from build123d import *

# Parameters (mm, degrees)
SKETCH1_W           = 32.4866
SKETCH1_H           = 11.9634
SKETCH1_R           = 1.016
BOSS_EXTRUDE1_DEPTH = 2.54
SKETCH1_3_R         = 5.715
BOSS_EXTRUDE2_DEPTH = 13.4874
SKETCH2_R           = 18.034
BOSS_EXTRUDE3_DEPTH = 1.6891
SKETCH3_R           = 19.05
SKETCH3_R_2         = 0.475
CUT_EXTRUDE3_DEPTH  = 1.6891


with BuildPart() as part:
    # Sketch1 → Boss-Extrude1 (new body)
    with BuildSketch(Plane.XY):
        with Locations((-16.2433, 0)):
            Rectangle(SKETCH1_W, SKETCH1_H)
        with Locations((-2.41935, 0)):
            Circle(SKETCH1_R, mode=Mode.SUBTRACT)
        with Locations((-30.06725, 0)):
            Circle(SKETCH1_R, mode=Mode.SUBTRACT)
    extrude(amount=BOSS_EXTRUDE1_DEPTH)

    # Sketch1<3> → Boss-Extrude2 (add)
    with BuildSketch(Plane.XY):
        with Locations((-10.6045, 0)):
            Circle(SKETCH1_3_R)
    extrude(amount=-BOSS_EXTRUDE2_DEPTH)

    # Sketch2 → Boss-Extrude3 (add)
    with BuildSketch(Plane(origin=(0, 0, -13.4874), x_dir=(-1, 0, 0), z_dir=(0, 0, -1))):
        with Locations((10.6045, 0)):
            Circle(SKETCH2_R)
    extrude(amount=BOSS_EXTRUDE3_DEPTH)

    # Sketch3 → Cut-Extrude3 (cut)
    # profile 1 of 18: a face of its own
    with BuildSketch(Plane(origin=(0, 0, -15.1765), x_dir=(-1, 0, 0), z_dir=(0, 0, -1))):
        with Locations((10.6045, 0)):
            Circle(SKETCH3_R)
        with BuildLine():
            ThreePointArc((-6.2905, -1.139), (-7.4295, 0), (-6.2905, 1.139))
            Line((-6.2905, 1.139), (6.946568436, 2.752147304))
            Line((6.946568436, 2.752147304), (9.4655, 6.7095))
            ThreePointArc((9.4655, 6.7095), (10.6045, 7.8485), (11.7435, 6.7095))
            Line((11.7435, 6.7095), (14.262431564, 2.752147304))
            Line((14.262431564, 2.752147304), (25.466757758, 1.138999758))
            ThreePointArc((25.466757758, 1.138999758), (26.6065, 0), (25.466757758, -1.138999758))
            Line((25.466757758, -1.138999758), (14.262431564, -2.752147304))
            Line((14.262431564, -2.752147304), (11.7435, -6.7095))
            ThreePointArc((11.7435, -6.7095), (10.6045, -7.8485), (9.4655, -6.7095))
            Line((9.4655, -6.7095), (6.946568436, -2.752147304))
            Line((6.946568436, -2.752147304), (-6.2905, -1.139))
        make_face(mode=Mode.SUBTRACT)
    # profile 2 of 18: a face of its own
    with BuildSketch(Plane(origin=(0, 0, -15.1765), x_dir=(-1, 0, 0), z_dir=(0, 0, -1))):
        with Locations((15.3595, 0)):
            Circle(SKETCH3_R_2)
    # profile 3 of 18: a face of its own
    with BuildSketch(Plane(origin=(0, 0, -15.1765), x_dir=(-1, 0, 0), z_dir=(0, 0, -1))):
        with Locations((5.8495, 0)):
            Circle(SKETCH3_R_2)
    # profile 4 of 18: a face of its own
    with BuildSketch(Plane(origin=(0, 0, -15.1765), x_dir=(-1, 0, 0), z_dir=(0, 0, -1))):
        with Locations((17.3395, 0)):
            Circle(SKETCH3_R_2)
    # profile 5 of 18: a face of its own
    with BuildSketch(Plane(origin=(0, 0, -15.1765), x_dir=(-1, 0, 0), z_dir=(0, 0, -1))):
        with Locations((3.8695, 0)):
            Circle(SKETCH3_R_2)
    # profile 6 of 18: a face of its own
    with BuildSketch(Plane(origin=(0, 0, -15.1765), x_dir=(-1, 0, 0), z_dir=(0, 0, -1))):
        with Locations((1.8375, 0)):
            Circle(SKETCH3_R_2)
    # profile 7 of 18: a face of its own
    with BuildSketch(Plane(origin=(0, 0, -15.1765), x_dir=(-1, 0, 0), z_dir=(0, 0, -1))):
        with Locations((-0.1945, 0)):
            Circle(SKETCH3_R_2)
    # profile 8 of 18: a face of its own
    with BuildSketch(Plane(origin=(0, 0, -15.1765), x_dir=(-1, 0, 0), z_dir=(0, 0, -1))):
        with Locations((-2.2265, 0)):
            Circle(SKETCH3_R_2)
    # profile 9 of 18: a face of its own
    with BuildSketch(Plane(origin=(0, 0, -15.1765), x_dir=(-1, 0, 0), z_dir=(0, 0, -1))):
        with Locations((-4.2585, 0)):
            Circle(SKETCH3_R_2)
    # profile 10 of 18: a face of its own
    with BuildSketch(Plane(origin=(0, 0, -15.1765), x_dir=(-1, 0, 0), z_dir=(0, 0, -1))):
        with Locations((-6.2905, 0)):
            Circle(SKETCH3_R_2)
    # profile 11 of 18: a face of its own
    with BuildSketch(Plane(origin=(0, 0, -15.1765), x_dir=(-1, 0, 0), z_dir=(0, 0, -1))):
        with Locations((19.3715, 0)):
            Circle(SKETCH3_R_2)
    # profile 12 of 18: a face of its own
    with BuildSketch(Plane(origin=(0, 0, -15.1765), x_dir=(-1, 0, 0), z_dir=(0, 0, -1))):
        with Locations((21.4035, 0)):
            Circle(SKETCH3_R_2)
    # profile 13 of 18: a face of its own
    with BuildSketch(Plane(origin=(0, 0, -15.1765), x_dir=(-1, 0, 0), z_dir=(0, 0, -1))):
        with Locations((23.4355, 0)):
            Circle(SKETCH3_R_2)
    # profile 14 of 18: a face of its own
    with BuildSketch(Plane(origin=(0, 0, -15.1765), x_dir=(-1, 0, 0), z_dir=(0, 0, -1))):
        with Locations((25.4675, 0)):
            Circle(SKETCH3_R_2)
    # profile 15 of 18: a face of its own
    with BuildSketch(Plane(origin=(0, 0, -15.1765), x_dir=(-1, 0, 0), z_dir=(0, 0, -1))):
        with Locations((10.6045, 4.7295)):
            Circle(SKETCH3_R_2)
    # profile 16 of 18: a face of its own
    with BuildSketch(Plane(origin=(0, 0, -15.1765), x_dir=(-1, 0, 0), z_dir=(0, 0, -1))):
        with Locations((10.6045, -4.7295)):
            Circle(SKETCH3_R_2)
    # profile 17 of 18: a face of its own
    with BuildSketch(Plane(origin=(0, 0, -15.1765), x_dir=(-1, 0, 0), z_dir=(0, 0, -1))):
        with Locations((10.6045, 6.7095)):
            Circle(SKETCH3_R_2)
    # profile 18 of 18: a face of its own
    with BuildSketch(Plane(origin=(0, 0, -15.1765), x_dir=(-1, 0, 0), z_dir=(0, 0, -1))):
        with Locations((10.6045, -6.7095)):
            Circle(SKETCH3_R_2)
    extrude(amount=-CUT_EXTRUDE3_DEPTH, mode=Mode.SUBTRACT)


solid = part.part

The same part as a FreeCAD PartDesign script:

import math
import FreeCAD as App
import Part
import Sketcher
Q = App.Units.Quantity


def add_polygon(sketch, points):
    """Adds a closed chain of lines whose ends are joined by coincident constraints."""
    first, n = sketch.GeometryCount, len(points)
    for a, b in zip(points, points[1:] + points[:1]):
        sketch.addGeometry(Part.LineSegment(App.Vector(*a, 0), App.Vector(*b, 0)), False)
    for i in range(n):
        sketch.addConstraint(Sketcher.Constraint("Coincident", first + i, 2, first + (i + 1) % n, 1))

doc = App.newDocument("Part")
body = doc.addObject("PartDesign::Body", "Body")

sketch1 = doc.addObject("Sketcher::SketchObject", "Sketch")
body.addObject(sketch1)
sketch1.AttachmentSupport = (doc.XY_Plane, [""])
sketch1.MapMode = "FlatFace"
add_polygon(sketch1, [(-32.5, 6), (-32.5, -6), (0, -6), (0, 6)])
sketch1.addGeometry(Part.Circle(App.Vector(-30.1, 0, 0), App.Vector(0, 0, 1), 1), False)
sketch1.addGeometry(Part.Circle(App.Vector(-2.4, 0, 0), App.Vector(0, 0, 1), 1), False)
sketch1.addConstraint([
    Sketcher.Constraint("Vertical", 0),
    Sketcher.Constraint("Horizontal", 1),
    Sketcher.Constraint("Vertical", 2),
    Sketcher.Constraint("Horizontal", 3),
    Sketcher.Constraint("Equal", 4, 5),
    Sketcher.Constraint("Symmetric", 1, 2, 2, 2, -1, 1),
    Sketcher.Constraint("PointOnObject", 4, 3, -1),
    Sketcher.Constraint("PointOnObject", 5, 3, -1),
    Sketcher.Constraint("Diameter", 4, Q("0.08 in")),
    Sketcher.Constraint("DistanceX", 1, 1, 1, 2, Q("1.279 in")),
    Sketcher.Constraint("DistanceY", 0, 2, 0, 1, Q("0.471 in")),
    Sketcher.Constraint("DistanceX", 4, 3, 5, 3, Q("1.0885 in")),
    Sketcher.Constraint("DistanceX", 4, 3, -1, 1, Q("30.06725 mm")),
])
pad1 = doc.addObject("PartDesign::Pad", "Pad")
body.addObject(pad1)
pad1.Profile = sketch1
pad1.Length = Q("0.1 in")

sketch2 = doc.addObject("Sketcher::SketchObject", "Sketch001")
body.addObject(sketch2)
sketch2.AttachmentSupport = (doc.XY_Plane, [""])
sketch2.MapMode = "FlatFace"
sketch2.addGeometry(Part.Circle(App.Vector(-11, 0, 0), App.Vector(0, 0, 1), 6), False)
sketch2.addConstraint([
    Sketcher.Constraint("PointOnObject", 0, 3, -1),
    Sketcher.Constraint("Diameter", 0, Q("0.45 in")),
    Sketcher.Constraint("DistanceX", 0, 3, -1, 1, Q("0.4175 in")),
])
pad2 = doc.addObject("PartDesign::Pad", "Pad001")
body.addObject(pad2)
pad2.Profile = sketch2
pad2.Length = Q("0.531 in")
pad2.Reversed = True

sketch3 = doc.addObject("Sketcher::SketchObject", "Sketch002")
body.addObject(sketch3)
sketch3.AttachmentSupport = (doc.XY_Plane, [""])
sketch3.MapMode = "FlatFace"
sketch3.AttachmentOffset = App.Placement(App.Vector(0, 0, -0.531 * 25.4), App.Rotation())
sketch3.addGeometry(Part.Circle(App.Vector(-11, 0, 0), App.Vector(0, 0, 1), 18), False)
sketch3.addConstraint([
    Sketcher.Constraint("PointOnObject", 0, 3, -1),
    Sketcher.Constraint("Diameter", 0, Q("1.42 in")),
    Sketcher.Constraint("DistanceX", 0, 3, -1, 1, Q("0.4175 in")),
])
pad3 = doc.addObject("PartDesign::Pad", "Pad002")
body.addObject(pad3)
pad3.Profile = sketch3
pad3.Length = Q("0.0665 in")
pad3.Reversed = True

sketch4 = doc.addObject("Sketcher::SketchObject", "Sketch003")
body.addObject(sketch4)
sketch4.AttachmentSupport = (doc.XY_Plane, [""])
sketch4.MapMode = "FlatFace"
sketch4.AttachmentOffset = App.Placement(App.Vector(0, 0, -0.5975 * 25.4), App.Rotation())
sketch4.addGeometry([
    Part.Circle(App.Vector(-10.6, 0, 0), App.Vector(0, 0, 1), 19.05),
    Part.LineSegment(App.Vector(-6.95, -2.75, 0), App.Vector(6.29, -1.14, 0)),
    Part.ArcOfCircle(Part.Circle(App.Vector(6.29, 0, 0), App.Vector(0, 0, 1), 1.14), math.radians(-90), math.radians(90)),
    Part.LineSegment(App.Vector(6.29, 1.14, 0), App.Vector(-6.95, 2.75, 0)),
    Part.LineSegment(App.Vector(-6.95, 2.75, 0), App.Vector(-9.47, 6.71, 0)),
    Part.ArcOfCircle(Part.Circle(App.Vector(-10.6, 6.71, 0), App.Vector(0, 0, 1), 1.14), math.radians(0), math.radians(180)),
    Part.LineSegment(App.Vector(-11.74, 6.71, 0), App.Vector(-14.26, 2.75, 0)),
    Part.LineSegment(App.Vector(-14.26, 2.75, 0), App.Vector(-25.47, 1.14, 0)),
    Part.ArcOfCircle(Part.Circle(App.Vector(-25.47, 0, 0), App.Vector(0, 0, 1), 1.14), math.radians(90), math.radians(270)),
    Part.LineSegment(App.Vector(-25.47, -1.14, 0), App.Vector(-14.26, -2.75, 0)),
    Part.LineSegment(App.Vector(-14.26, -2.75, 0), App.Vector(-11.74, -6.71, 0)),
    Part.ArcOfCircle(Part.Circle(App.Vector(-10.6, -6.71, 0), App.Vector(0, 0, 1), 1.14), math.radians(180), math.radians(360)),
    Part.LineSegment(App.Vector(-9.47, -6.71, 0), App.Vector(-6.95, -2.75, 0)),
    Part.Circle(App.Vector(-15.36, 0, 0), App.Vector(0, 0, 1), 0.47),
    Part.Circle(App.Vector(-5.85, 0, 0), App.Vector(0, 0, 1), 0.47),
    Part.Circle(App.Vector(-17.34, 0, 0), App.Vector(0, 0, 1), 0.47),
    Part.Circle(App.Vector(-3.87, 0, 0), App.Vector(0, 0, 1), 0.47),
    Part.Circle(App.Vector(-1.84, 0, 0), App.Vector(0, 0, 1), 0.47),
    Part.Circle(App.Vector(0.19, 0, 0), App.Vector(0, 0, 1), 0.47),
    Part.Circle(App.Vector(2.23, 0, 0), App.Vector(0, 0, 1), 0.47),
    Part.Circle(App.Vector(4.26, 0, 0), App.Vector(0, 0, 1), 0.47),
    Part.Circle(App.Vector(6.29, 0, 0), App.Vector(0, 0, 1), 0.47),
    Part.Circle(App.Vector(-19.37, 0, 0), App.Vector(0, 0, 1), 0.47),
    Part.Circle(App.Vector(-21.4, 0, 0), App.Vector(0, 0, 1), 0.47),
    Part.Circle(App.Vector(-23.44, 0, 0), App.Vector(0, 0, 1), 0.47),
    Part.Circle(App.Vector(-25.47, 0, 0), App.Vector(0, 0, 1), 0.47),
    Part.Circle(App.Vector(-10.6, 4.73, 0), App.Vector(0, 0, 1), 0.47),
    Part.Circle(App.Vector(-10.6, -4.73, 0), App.Vector(0, 0, 1), 0.47),
    Part.Circle(App.Vector(-10.6, 6.71, 0), App.Vector(0, 0, 1), 0.47),
    Part.Circle(App.Vector(-10.6, -6.71, 0), App.Vector(0, 0, 1), 0.47),
], False)
sketch4.addConstraint([
    Sketcher.Constraint("Coincident", 1, 2, 2, 1),
    Sketcher.Constraint("Coincident", 2, 2, 3, 1),
    Sketcher.Constraint("Coincident", 3, 2, 4, 1),
    Sketcher.Constraint("Coincident", 4, 2, 5, 1),
    Sketcher.Constraint("Coincident", 5, 2, 6, 1),
    Sketcher.Constraint("Coincident", 6, 2, 7, 1),
    Sketcher.Constraint("Coincident", 7, 2, 8, 1),
    Sketcher.Constraint("Coincident", 8, 2, 9, 1),
    Sketcher.Constraint("Coincident", 9, 2, 10, 1),
    Sketcher.Constraint("Coincident", 10, 2, 11, 1),
    Sketcher.Constraint("Coincident", 11, 2, 12, 1),
    Sketcher.Constraint("Coincident", 12, 2, 1, 1),
    Sketcher.Constraint("Coincident", 21, 3, 2, 3),
    Sketcher.Constraint("Coincident", 25, 3, 8, 3),
    Sketcher.Constraint("Coincident", 28, 3, 5, 3),
    Sketcher.Constraint("Coincident", 29, 3, 11, 3),
    Sketcher.Constraint("Equal", 2, 5),
    Sketcher.Constraint("Equal", 5, 8),
    Sketcher.Constraint("Equal", 8, 11),
    Sketcher.Constraint("Equal", 13, 14),
    Sketcher.Constraint("Equal", 14, 15),
    Sketcher.Constraint("Equal", 15, 16),
    Sketcher.Constraint("Equal", 16, 17),
    Sketcher.Constraint("Equal", 17, 18),
    Sketcher.Constraint("Equal", 18, 19),
    Sketcher.Constraint("Equal", 19, 20),
    Sketcher.Constraint("Equal", 20, 21),
    Sketcher.Constraint("Equal", 21, 22),
    Sketcher.Constraint("Equal", 22, 23),
    Sketcher.Constraint("Equal", 23, 24),
    Sketcher.Constraint("Equal", 24, 25),
    Sketcher.Constraint("Equal", 25, 26),
    Sketcher.Constraint("Equal", 26, 27),
    Sketcher.Constraint("Equal", 27, 28),
    Sketcher.Constraint("Equal", 28, 29),
    Sketcher.Constraint("Symmetric", 5, 3, 11, 3, -1),
    Sketcher.Constraint("Symmetric", 26, 3, 27, 3, -1),
    Sketcher.Constraint("Symmetric", 1, 2, 2, 2, -1),
    Sketcher.Constraint("Symmetric", 7, 2, 8, 2, -1),
    Sketcher.Constraint("Symmetric", 6, 2, 9, 2, -1),
    Sketcher.Constraint("Symmetric", 3, 2, 12, 2, -1),
    Sketcher.Constraint("PointOnObject", 0, 3, -1),
    Sketcher.Constraint("PointOnObject", 13, 3, -1),
    Sketcher.Constraint("PointOnObject", 14, 3, -1),
    Sketcher.Constraint("PointOnObject", 15, 3, -1),
    Sketcher.Constraint("PointOnObject", 16, 3, -1),
    Sketcher.Constraint("PointOnObject", 17, 3, -1),
    Sketcher.Constraint("PointOnObject", 18, 3, -1),
    Sketcher.Constraint("PointOnObject", 19, 3, -1),
    Sketcher.Constraint("PointOnObject", 20, 3, -1),
    Sketcher.Constraint("PointOnObject", 22, 3, -1),
    Sketcher.Constraint("PointOnObject", 23, 3, -1),
    Sketcher.Constraint("PointOnObject", 24, 3, -1),
    Sketcher.Constraint("Parallel", 4, 10),
    Sketcher.Constraint("Parallel", 6, 12),
    Sketcher.Constraint("Horizontal", 28, 3, 4, 2),
    Sketcher.Constraint("Horizontal", 4, 2, 5, 2),
    Sketcher.Constraint("Horizontal", 3, 2, 6, 2),
    Sketcher.Constraint("Horizontal", 29, 3, 10, 2),
    Sketcher.Constraint("Vertical", 0, 3, 5, 3),
    Sketcher.Constraint("Vertical", 11, 3, 26, 3),
    Sketcher.Constraint("Vertical", 21, 3, 1, 2),
    Sketcher.Constraint("Diameter", 0, Q("1.5 in")),
    Sketcher.Constraint("DistanceX", 16, 3, 2, 3, Q("0.4 in")),
    Sketcher.Constraint("Diameter", 13, Q("0.95 mm")),
    Sketcher.Constraint("Radius", 2, Q("1.139 mm")),
    Sketcher.Constraint("DistanceX", 8, 3, 15, 3, Q("0.32 in")),
    Sketcher.Constraint("DistanceX", 16, 3, 17, 3, Q("0.08 in")),
    Sketcher.Constraint("DistanceX", 17, 3, 18, 3, Q("0.08 in")),
    Sketcher.Constraint("DistanceX", 18, 3, 19, 3, Q("0.08 in")),
    Sketcher.Constraint("DistanceX", 19, 3, 20, 3, Q("0.08 in")),
    Sketcher.Constraint("DistanceX", 22, 3, 15, 3, Q("0.08 in")),
    Sketcher.Constraint("DistanceX", 23, 3, 22, 3, Q("0.08 in")),
    Sketcher.Constraint("DistanceX", 8, 3, 24, 3, Q("0.08 in")),
    Sketcher.Constraint("Distance", 1, Q("0.525 in")),
    Sketcher.Constraint("DistanceX", 0, 3, -1, 1, Q("0.4175 in")),
    Sketcher.Constraint("DistanceX", -1, 1, 2, 3, Q("6.2905 mm")),
    Sketcher.Constraint("DistanceY", -1, 1, 5, 3, Q("6.7095 mm")),
    Sketcher.Constraint("DistanceX", 8, 3, -1, 1, Q("25.4675 mm")),
    Sketcher.Constraint("DistanceX", 13, 3, -1, 1, Q("15.3595 mm")),
    Sketcher.Constraint("DistanceX", 14, 3, -1, 1, Q("5.8495 mm")),
    Sketcher.Constraint("DistanceY", -1, 1, 26, 3, Q("4.7295 mm")),
    Sketcher.Constraint("Distance", 4, Q("4.691019 mm")),
    Sketcher.Constraint("Distance", 7, Q("11.319857 mm")),
])
pocket1 = doc.addObject("PartDesign::Pocket", "Pocket")
body.addObject(pocket1)
pocket1.Profile = sketch4
pocket1.Length = Q("0.0665 in")
pocket1.Reversed = True

doc.recompute()
